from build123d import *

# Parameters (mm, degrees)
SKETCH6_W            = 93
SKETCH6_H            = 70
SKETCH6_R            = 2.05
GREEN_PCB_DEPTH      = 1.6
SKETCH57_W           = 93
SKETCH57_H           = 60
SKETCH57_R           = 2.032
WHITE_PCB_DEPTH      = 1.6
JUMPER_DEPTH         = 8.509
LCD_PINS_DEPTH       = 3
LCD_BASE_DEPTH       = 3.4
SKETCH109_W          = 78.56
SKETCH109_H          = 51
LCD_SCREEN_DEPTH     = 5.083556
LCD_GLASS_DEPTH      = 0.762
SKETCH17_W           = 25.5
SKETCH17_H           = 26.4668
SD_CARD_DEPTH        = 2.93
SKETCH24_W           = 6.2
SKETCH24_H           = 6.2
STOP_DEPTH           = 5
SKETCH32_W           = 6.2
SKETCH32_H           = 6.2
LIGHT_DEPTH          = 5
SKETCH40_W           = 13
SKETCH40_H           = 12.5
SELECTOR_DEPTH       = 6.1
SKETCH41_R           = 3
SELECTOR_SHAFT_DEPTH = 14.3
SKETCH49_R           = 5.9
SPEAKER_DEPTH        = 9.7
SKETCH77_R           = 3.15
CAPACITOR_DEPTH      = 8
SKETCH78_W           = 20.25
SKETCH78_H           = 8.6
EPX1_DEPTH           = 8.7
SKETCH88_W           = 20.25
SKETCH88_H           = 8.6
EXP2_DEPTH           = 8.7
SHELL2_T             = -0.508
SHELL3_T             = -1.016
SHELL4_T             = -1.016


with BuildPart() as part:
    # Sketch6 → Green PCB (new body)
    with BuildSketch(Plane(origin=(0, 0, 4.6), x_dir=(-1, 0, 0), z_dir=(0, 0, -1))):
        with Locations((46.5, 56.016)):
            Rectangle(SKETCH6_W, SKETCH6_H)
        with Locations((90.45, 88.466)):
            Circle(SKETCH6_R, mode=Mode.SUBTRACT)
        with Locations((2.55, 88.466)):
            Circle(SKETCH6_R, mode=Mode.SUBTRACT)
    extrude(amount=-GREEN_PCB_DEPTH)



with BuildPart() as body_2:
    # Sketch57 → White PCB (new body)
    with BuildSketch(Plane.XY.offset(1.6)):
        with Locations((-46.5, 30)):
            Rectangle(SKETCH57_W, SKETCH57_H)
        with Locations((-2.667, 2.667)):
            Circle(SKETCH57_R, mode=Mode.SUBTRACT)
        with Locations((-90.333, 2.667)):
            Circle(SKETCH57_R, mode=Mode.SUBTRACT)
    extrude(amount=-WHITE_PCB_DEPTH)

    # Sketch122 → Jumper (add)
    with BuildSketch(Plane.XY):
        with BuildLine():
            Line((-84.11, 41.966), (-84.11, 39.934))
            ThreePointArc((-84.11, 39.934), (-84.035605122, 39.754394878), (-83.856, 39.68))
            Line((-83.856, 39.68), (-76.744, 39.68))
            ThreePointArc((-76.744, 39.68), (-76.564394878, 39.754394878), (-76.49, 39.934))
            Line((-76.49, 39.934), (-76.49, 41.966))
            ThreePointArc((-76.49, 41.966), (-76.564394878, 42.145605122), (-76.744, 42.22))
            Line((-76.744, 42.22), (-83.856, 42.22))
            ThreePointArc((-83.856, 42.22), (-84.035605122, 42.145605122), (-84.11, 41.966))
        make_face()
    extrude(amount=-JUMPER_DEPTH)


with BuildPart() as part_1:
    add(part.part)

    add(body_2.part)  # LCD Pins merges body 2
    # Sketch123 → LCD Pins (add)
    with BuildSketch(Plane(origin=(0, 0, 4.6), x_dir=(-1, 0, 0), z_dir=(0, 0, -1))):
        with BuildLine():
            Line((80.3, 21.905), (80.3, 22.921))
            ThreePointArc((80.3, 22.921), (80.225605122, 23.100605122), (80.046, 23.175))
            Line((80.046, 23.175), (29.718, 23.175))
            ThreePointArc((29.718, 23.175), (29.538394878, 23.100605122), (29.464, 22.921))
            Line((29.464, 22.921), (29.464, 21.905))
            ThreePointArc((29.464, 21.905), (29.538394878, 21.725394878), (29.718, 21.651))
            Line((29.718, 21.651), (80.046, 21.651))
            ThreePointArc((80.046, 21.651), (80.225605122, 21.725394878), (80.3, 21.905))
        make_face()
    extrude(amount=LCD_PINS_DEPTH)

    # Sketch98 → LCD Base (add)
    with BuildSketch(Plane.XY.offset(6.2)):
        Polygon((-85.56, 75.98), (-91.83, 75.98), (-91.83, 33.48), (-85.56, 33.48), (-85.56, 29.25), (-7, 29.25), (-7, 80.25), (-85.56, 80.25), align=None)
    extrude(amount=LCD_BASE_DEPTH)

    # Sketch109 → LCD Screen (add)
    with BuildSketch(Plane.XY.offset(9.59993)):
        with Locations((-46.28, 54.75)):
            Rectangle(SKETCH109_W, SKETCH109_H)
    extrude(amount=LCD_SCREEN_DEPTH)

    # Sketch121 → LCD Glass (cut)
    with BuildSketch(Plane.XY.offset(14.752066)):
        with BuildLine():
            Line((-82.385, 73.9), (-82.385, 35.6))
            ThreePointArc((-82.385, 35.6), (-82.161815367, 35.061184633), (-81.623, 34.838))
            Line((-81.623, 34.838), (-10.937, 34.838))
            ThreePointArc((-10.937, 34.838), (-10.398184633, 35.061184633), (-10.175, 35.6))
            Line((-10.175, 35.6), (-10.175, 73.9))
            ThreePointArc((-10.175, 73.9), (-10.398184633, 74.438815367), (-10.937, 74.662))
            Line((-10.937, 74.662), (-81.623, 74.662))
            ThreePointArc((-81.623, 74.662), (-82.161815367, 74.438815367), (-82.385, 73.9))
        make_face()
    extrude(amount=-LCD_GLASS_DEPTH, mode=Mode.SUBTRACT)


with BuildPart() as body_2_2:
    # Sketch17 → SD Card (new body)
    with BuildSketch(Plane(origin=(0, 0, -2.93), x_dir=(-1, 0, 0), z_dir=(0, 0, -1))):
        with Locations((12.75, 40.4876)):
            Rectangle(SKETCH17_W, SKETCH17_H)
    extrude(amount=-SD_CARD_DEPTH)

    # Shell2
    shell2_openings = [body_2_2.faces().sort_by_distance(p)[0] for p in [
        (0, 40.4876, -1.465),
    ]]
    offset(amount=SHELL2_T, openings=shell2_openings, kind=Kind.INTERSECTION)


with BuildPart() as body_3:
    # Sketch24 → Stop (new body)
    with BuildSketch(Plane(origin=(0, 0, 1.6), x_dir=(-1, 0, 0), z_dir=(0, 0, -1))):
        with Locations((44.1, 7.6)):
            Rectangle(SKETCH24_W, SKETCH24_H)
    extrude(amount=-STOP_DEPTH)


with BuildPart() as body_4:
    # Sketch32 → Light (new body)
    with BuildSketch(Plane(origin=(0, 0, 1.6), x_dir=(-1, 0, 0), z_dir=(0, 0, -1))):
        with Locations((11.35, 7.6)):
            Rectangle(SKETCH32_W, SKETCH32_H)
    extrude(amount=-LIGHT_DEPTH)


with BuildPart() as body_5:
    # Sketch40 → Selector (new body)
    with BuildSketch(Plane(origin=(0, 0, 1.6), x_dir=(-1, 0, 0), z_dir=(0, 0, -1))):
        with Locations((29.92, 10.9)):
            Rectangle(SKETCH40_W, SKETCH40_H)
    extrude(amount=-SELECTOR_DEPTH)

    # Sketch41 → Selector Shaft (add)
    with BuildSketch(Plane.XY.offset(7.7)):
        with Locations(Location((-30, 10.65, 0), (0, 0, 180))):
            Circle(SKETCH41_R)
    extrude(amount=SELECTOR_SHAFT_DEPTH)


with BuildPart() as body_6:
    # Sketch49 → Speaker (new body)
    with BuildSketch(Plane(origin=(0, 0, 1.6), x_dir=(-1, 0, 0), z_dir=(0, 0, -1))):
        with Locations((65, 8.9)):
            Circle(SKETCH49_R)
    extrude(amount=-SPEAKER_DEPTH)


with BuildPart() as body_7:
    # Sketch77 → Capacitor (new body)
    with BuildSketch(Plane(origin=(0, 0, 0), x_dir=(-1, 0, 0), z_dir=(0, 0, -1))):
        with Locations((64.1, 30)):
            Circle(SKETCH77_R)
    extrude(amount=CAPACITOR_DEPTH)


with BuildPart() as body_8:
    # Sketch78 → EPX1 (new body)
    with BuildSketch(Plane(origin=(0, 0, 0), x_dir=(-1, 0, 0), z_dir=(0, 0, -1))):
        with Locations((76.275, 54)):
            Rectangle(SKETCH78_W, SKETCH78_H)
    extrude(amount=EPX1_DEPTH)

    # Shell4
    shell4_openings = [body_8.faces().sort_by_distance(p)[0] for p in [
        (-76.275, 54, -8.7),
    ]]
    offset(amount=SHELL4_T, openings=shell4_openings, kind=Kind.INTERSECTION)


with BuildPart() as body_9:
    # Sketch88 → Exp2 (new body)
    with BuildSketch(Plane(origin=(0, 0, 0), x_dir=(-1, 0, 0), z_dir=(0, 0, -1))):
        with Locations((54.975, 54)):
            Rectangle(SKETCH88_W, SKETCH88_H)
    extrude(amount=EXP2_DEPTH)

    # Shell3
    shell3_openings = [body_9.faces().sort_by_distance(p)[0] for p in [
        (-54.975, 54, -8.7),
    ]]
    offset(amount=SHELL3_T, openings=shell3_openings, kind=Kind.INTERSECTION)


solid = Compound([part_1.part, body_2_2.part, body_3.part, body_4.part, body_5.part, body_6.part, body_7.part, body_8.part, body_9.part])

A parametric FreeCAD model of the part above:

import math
import FreeCAD as App
import Part
import Sketcher
Q = App.Units.Quantity


def faces_at(feature, points):
    """Names of the faces that lie closest to the given points."""
    faces = feature.Shape.Faces
    near = lambda p: min(range(len(faces)), key=lambda i: faces[i].distToShape(Part.Vertex(*p))[0])
    return sorted({f"Face{near(p) + 1}" for p in points})


def add_polygon(sketch, points):
    """Adds a closed chain of lines whose ends are joined by coincident constraints."""
    first, n = sketch.GeometryCount, len(points)
    for a, b in zip(points, points[1:] + points[:1]):
        sketch.addGeometry(Part.LineSegment(App.Vector(*a, 0), App.Vector(*b, 0)), False)
    for i in range(n):
        sketch.addConstraint(Sketcher.Constraint("Coincident", first + i, 2, first + (i + 1) % n, 1))

doc = App.newDocument("Part")
params = doc.addObject("Spreadsheet::Sheet", "Params")
for row, (alias, value) in enumerate([
    ("sketch1_diameter", "4.1 mm"),
    ("sketch1_width", "93 mm"),
    ("sketch1_height", "70 mm"),
    ("pad1_length", "1.6 mm"),
    ("sketch2_width", "93 mm"),
    ("sketch2_height", "60 mm"),
    ("pad2_length", "1.6 mm"),
    ("pad3_length", "8.509 mm"),
    ("pad4_length", "3 mm"),
    ("sketch5_height", "51 mm"),
    ("sketch5_height2", "42.5 mm"),
    ("sketch5_width", "6.27 mm"),
    ("sketch5_width2", "78.56 mm"),
    ("sketch5_height3", "4.23 mm"),
    ("pad5_length", "3.4 mm"),
    ("sketch6_height", "51 mm"),
    ("sketch6_width", "78.56 mm"),
    ("pad6_length", "5.083556 mm"),
    ("sketch7_height", "38.3 mm"),
    ("pocket1_length", "0.762 mm"),
    ("sketch8_width", "25.5 mm"),
    ("pad7_length", "2.93 mm"),
    ("thickness_wall", "0.508 mm"),
    ("sketch9_width", "6.2 mm"),
    ("pad8_length", "5 mm"),
    ("sketch10_width", "6.2 mm"),
    ("pad9_length", "5 mm"),
    ("sketch11_width", "13 mm"),
    ("sketch11_height", "12.5 mm"),
    ("pad10_length", "6.1 mm"),
    ("sketch12_diameter", "6 mm"),
    ("pad11_length", "14.3 mm"),
    ("sketch13_diameter", "11.8 mm"),
    ("pad12_length", "9.7 mm"),
    ("sketch14_diameter", "6.3 mm"),
    ("pad13_length", "8 mm"),
    ("sketch15_height", "8.6 mm"),
    ("sketch15_width", "20.25 mm"),
    ("pad14_length", "8.7 mm"),
    ("thickness2_wall", "1.016 mm"),
    ("sketch16_height", "8.6 mm"),
    ("sketch16_width", "20.25 mm"),
    ("pad15_length", "8.7 mm"),
    ("thickness3_wall", "1.016 mm"),
], start=1):
    params.set(f"A{row}", alias)
    params.set(f"B{row}", "=" + value)
    params.setAlias(f"B{row}", alias)

body = doc.addObject("PartDesign::Body", "Body")

# Sketch on XY plane
sketch1 = doc.addObject("Sketcher::SketchObject", "Sketch")
body.addObject(sketch1)
sketch1.AttachmentSupport = (doc.XY_Plane, [""])
sketch1.MapMode = "FlatFace"
sketch1.AttachmentOffset = App.Placement(App.Vector(0, 0, 4.6), App.Rotation())
add_polygon(sketch1, [(0, 91), (0, 21), (-93, 21), (-93, 91)])  # lines 0-3
sketch1.addGeometry(Part.Circle(App.Vector(-2.5, 88.5, 0), App.Vector(0, 0, 1), 2), False)  # 4
sketch1.addGeometry(Part.Circle(App.Vector(-90.5, 88.5, 0), App.Vector(0, 0, 1), 2), False)  # 5
sketch1.addConstraint([
    Sketcher.Constraint("Vertical", 0),
    Sketcher.Constraint("Horizontal", 1),
    Sketcher.Constraint("Vertical", 2),
    Sketcher.Constraint("Horizontal", 3),
    Sketcher.Constraint("Equal", 4, 5),
    Sketcher.Constraint("PointOnObject", 0, 2, -2),
    Sketcher.Constraint("Horizontal", 4, 3, 5, 3),
    Sketcher.Constraint("Diameter", 4, Q("4.1 mm")),
    Sketcher.Constraint("DistanceX", 1, 2, 1, 1, Q("93 mm")),
    Sketcher.Constraint("DistanceY", 0, 2, 0, 1, Q("70 mm")),
    Sketcher.Constraint("DistanceX", 5, 3, 4, 3, Q("87.9 mm")),
    Sketcher.Constraint("DistanceX", 4, 3, -1, 1, Q("2.55 mm")),
    Sketcher.Constraint("DistanceY", 0, 2, 4, 3, Q("67.45 mm")),
    Sketcher.Constraint("DistanceY", -1, 1, 4, 3, Q("88.466 mm")),
])
sketch1.setExpression("Constraints[11]", "Params.sketch1_diameter")
sketch1.setExpression("Constraints[12]", "Params.sketch1_width")
sketch1.setExpression("Constraints[13]", "Params.sketch1_height")
pad1 = doc.addObject("PartDesign::Pad", "Pad")
body.addObject(pad1)
pad1.Profile = sketch1
pad1.setExpression("Length", "Params.pad1_length")
body2 = doc.addObject("PartDesign::Body", "Body001")

# Sketch on XY plane
sketch2 = doc.addObject("Sketcher::SketchObject", "Sketch001")
body2.addObject(sketch2)
sketch2.AttachmentSupport = (doc.getObject("XY_Plane001"), [""])
sketch2.MapMode = "FlatFace"
sketch2.AttachmentOffset = App.Placement(App.Vector(0, 0, 1.6), App.Rotation())
add_polygon(sketch2, [(-93, 60), (-93, 0), (0, 0), (0, 60)])  # lines 0-3
sketch2.addGeometry(Part.Circle(App.Vector(-90.3, 2.7, 0), App.Vector(0, 0, 1), 2), False)  # 4
sketch2.addGeometry(Part.Circle(App.Vector(-2.7, 2.7, 0), App.Vector(0, 0, 1), 2), False)  # 5
sketch2.addConstraint([
    Sketcher.Constraint("Vertical", 0),
    Sketcher.Constraint("Horizontal", 1),
    Sketcher.Constraint("Vertical", 2),
    Sketcher.Constraint("Horizontal", 3),
    Sketcher.Constraint("Coincident", 1, 2, -1, 1),
    Sketcher.Constraint("Equal", 4, 5),
    Sketcher.Constraint("Horizontal", 4, 3, 5, 3),
    Sketcher.Constraint("DistanceX", 1, 1, 1, 2, Q("93 mm")),
    Sketcher.Constraint("DistanceY", 0, 2, 0, 1, Q("60 mm")),
    Sketcher.Constraint("Diameter", 4, Q("4.064 mm")),
    Sketcher.Constraint("DistanceX", 4, 3, -1, 1, Q("90.333 mm")),
    Sketcher.Constraint("DistanceY", -1, 1, 4, 3, Q("2.667 mm")),
    Sketcher.Constraint("DistanceX", 5, 3, -1, 1, Q("2.667 mm")),
])
sketch2.setExpression("Constraints[11]", "Params.sketch2_width")
sketch2.setExpression("Constraints[12]", "Params.sketch2_height")
pad2 = doc.addObject("PartDesign::Pad", "Pad001")
body2.addObject(pad2)
pad2.Profile = sketch2
pad2.setExpression("Length", "Params.pad2_length")
pad2.Reversed = True

# Sketch on XY plane
sketch3 = doc.addObject("Sketcher::SketchObject", "Sketch002")
body2.addObject(sketch3)
sketch3.AttachmentSupport = (doc.getObject("XY_Plane001"), [""])
sketch3.MapMode = "FlatFace"
sketch3.addGeometry([
    Part.LineSegment(App.Vector(-84.11, 41.97, 0), App.Vector(-84.11, 39.93, 0)),  # 0
    Part.ArcOfCircle(Part.Circle(App.Vector(-83.86, 39.93, 0), App.Vector(0, 0, 1), 0.25), math.radians(-180), math.radians(-90)),  # 1
    Part.LineSegment(App.Vector(-83.86, 39.68, 0), App.Vector(-76.74, 39.68, 0)),  # 2
    Part.ArcOfCircle(Part.Circle(App.Vector(-76.74, 39.93, 0), App.Vector(0, 0, 1), 0.25), math.radians(-90), math.radians(0)),  # 3
    Part.LineSegment(App.Vector(-76.49, 39.93, 0), App.Vector(-76.49, 41.97, 0)),  # 4
    Part.ArcOfCircle(Part.Circle(App.Vector(-76.74, 41.97, 0), App.Vector(0, 0, 1), 0.25), math.radians(0), math.radians(90)),  # 5
    Part.LineSegment(App.Vector(-76.74, 42.22, 0), App.Vector(-83.86, 42.22, 0)),  # 6
    Part.ArcOfCircle(Part.Circle(App.Vector(-83.86, 41.97, 0), App.Vector(0, 0, 1), 0.25), math.radians(90), math.radians(180)),  # 7
], False)
sketch3.addConstraint([
    Sketcher.Constraint("Tangent", 0, 2, 1, 1),
    Sketcher.Constraint("Tangent", 1, 2, 2, 1),
    Sketcher.Constraint("Tangent", 2, 2, 3, 1),
    Sketcher.Constraint("Tangent", 3, 2, 4, 1),
    Sketcher.Constraint("Tangent", 4, 2, 5, 1),
    Sketcher.Constraint("Tangent", 5, 2, 6, 1),
    Sketcher.Constraint("Tangent", 6, 2, 7, 1),
    Sketcher.Constraint("Tangent", 7, 2, 0, 1),
    Sketcher.Constraint("Vertical", 0),
    Sketcher.Constraint("Horizontal", 2),
    Sketcher.Constraint("Vertical", 4),
    Sketcher.Constraint("Horizontal", 6),
    Sketcher.Constraint("Equal", 1, 3),
    Sketcher.Constraint("Equal", 3, 5),
    Sketcher.Constraint("Equal", 5, 7),
    Sketcher.Constraint("Radius", 1, Q("0.254 mm")),
    Sketcher.Constraint("DistanceX", 2, 1, 2, 2, Q("7.112 mm")),
    Sketcher.Constraint("DistanceY", 0, 2, 0, 1, Q("2.032 mm")),
    Sketcher.Constraint("DistanceX", 0, 2, -1, 1, Q("84.11 mm")),
    Sketcher.Constraint("DistanceY", -1, 1, 1, 2, Q("39.68 mm")),
])
pad3 = doc.addObject("PartDesign::Pad", "Pad002")
body2.addObject(pad3)
pad3.Profile = sketch3
pad3.setExpression("Length", "Params.pad3_length")
pad3.Reversed = True
body.AllowCompound = True
doc.recompute()

boolean = doc.addObject("PartDesign::Boolean", "Boolean")
body.addObject(boolean)
boolean.Type = "Fuse"
boolean.addObjects([body2])

# Sketch on XY plane
sketch4 = doc.addObject("Sketcher::SketchObject", "Sketch003")
body.addObject(sketch4)
sketch4.AttachmentSupport = (doc.XY_Plane, [""])
sketch4.MapMode = "FlatFace"
sketch4.AttachmentOffset = App.Placement(App.Vector(0, 0, 4.6), App.Rotation())
sketch4.addGeometry([
    Part.LineSegment(App.Vector(-80.3, 21.91, 0), App.Vector(-80.3, 22.92, 0)),  # 0
    Part.ArcOfCircle(Part.Circle(App.Vector(-80.05, 22.92, 0), App.Vector(0, 0, 1), 0.25), math.radians(90), math.radians(180)),  # 1
    Part.LineSegment(App.Vector(-80.05, 23.18, 0), App.Vector(-29.72, 23.18, 0)),  # 2
    Part.ArcOfCircle(Part.Circle(App.Vector(-29.72, 22.92, 0), App.Vector(0, 0, 1), 0.25), math.radians(0), math.radians(90)),  # 3
    Part.LineSegment(App.Vector(-29.46, 22.92, 0), App.Vector(-29.46, 21.91, 0)),  # 4
    Part.ArcOfCircle(Part.Circle(App.Vector(-29.72, 21.91, 0), App.Vector(0, 0, 1), 0.25), math.radians(-90), math.radians(0)),  # 5
    Part.LineSegment(App.Vector(-29.72, 21.65, 0), App.Vector(-80.05, 21.65, 0)),  # 6
    Part.ArcOfCircle(Part.Circle(App.Vector(-80.05, 21.91, 0), App.Vector(0, 0, 1), 0.25), math.radians(-180), math.radians(-90)),  # 7
], False)
sketch4.addConstraint([
    Sketcher.Constraint("Tangent", 0, 2, 1, 2),
    Sketcher.Constraint("Tangent", 1, 1, 2, 1),
    Sketcher.Constraint("Tangent", 2, 2, 3, 2),
    Sketcher.Constraint("Tangent", 3, 1, 4, 1),
    Sketcher.Constraint("Tangent", 4, 2, 5, 2),
    Sketcher.Constraint("Tangent", 5, 1, 6, 1),
    Sketcher.Constraint("Tangent", 6, 2, 7, 2),
    Sketcher.Constraint("Tangent", 7, 1, 0, 1),
    Sketcher.Constraint("Vertical", 0),
    Sketcher.Constraint("Horizontal", 2),
    Sketcher.Constraint("Vertical", 4),
    Sketcher.Constraint("Horizontal", 6),
    Sketcher.Constraint("Equal", 1, 3),
    Sketcher.Constraint("Equal", 3, 5),
    Sketcher.Constraint("Equal", 5, 7),
    Sketcher.Constraint("Radius", 1, Q("0.254 mm")),
    Sketcher.Constraint("DistanceX", 0, 2, -1, 1, Q("80.3 mm")),
    Sketcher.Constraint("DistanceX", 2, 1, 2, 2, Q("50.328 mm")),
    Sketcher.Constraint("DistanceY", 0, 1, 0, 2, Q("1.016 mm")),
    Sketcher.Constraint("DistanceY", -1, 1, 1, 3, Q("22.921 mm")),
])
pad4 = doc.addObject("PartDesign::Pad", "Pad003")
body.addObject(pad4)
pad4.Profile = sketch4
pad4.setExpression("Length", "Params.pad4_length")
pad4.Reversed = True

# Sketch on XY plane
sketch5 = doc.addObject("Sketcher::SketchObject", "Sketch004")
body.addObject(sketch5)
sketch5.AttachmentSupport = (doc.XY_Plane, [""])
sketch5.MapMode = "FlatFace"
sketch5.AttachmentOffset = App.Placement(App.Vector(0, 0, 6.2), App.Rotation())
add_polygon(sketch5, [(-85.6, 76), (-91.8, 76), (-91.8, 33.5), (-85.6, 33.5), (-85.6, 29.2), (-7, 29.2), (-7, 80.2), (-85.6, 80.2)])  # lines 0-7
sketch5.addConstraint([
    Sketcher.Constraint("Horizontal", 0),
    Sketcher.Constraint("Vertical", 1),
    Sketcher.Constraint("Horizontal", 2),
    Sketcher.Constraint("Vertical", 3),
    Sketcher.Constraint("Horizontal", 4),
    Sketcher.Constraint("Vertical", 5),
    Sketcher.Constraint("Horizontal", 6),
    Sketcher.Constraint("Vertical", 7),
    Sketcher.Constraint("Vertical", 3, 2, 6, 2),
    Sketcher.Constraint("DistanceY", 5, 1, 5, 2, Q("51 mm")),
    Sketcher.Constraint("DistanceY", 1, 2, 1, 1, Q("42.5 mm")),
    Sketcher.Constraint("DistanceX", 4, 2, -1, 1, Q("7 mm")),
    Sketcher.Constraint("DistanceX", 0, 2, 0, 1, Q("6.27 mm")),
    Sketcher.Constraint("DistanceX", 4, 1, 4, 2, Q("78.56 mm")),
    Sketcher.Constraint("DistanceY", 3, 2, 3, 1, Q("4.23 mm")),
    Sketcher.Constraint("DistanceY", -1, 1, 0, 2, Q("75.98 mm")),
])
sketch5.setExpression("Constraints[17]", "Params.sketch5_height")
sketch5.setExpression("Constraints[18]", "Params.sketch5_height2")
sketch5.setExpression("Constraints[20]", "Params.sketch5_width")
sketch5.setExpression("Constraints[21]", "Params.sketch5_width2")
sketch5.setExpression("Constraints[22]", "Params.sketch5_height3")
pad5 = doc.addObject("PartDesign::Pad", "Pad004")
body.addObject(pad5)
pad5.Profile = sketch5
pad5.setExpression("Length", "Params.pad5_length")

# Sketch on XY plane
sketch6 = doc.addObject("Sketcher::SketchObject", "Sketch005")
body.addObject(sketch6)
sketch6.AttachmentSupport = (doc.XY_Plane, [""])
sketch6.MapMode = "FlatFace"
sketch6.AttachmentOffset = App.Placement(App.Vector(0, 0, 9.59993), App.Rotation())
add_polygon(sketch6, [(-86, 80), (-86, 29), (-7, 29), (-7, 80)])  # lines 0-3
sketch6.addConstraint([
    Sketcher.Constraint("Vertical", 0),
    Sketcher.Constraint("Horizontal", 1),
    Sketcher.Constraint("Vertical", 2),
    Sketcher.Constraint("Horizontal", 3),
    Sketcher.Constraint("DistanceY", 0, 2, 0, 1, Q("51 mm")),
    Sketcher.Constraint("DistanceX", 1, 2, -1, 1, Q("7 mm")),
    Sketcher.Constraint("DistanceX", 1, 1, 1, 2, Q("78.56 mm")),
    Sketcher.Constraint("DistanceY", -1, 1, 0, 2, Q("29.25 mm")),
])
sketch6.setExpression("Constraints[8]", "Params.sketch6_height")
sketch6.setExpression("Constraints[10]", "Params.sketch6_width")
pad6 = doc.addObject("PartDesign::Pad", "Pad005")
body.addObject(pad6)
pad6.Profile = sketch6
pad6.setExpression("Length", "Params.pad6_length")

# Sketch on XY plane
sketch7 = doc.addObject("Sketcher::SketchObject", "Sketch006")
body.addObject(sketch7)
sketch7.AttachmentSupport = (doc.XY_Plane, [""])
sketch7.MapMode = "FlatFace"
sketch7.AttachmentOffset = App.Placement(App.Vector(0, 0, 14.752066), App.Rotation())
sketch7.addGeometry([
    Part.LineSegment(App.Vector(-82.4, 73.9, 0), App.Vector(-82.4, 35.6, 0)),  # 0
    Part.ArcOfCircle(Part.Circle(App.Vector(-81.6, 35.6, 0), App.Vector(0, 0, 1), 0.8), math.radians(-180), math.radians(-90)),  # 1
    Part.LineSegment(App.Vector(-81.6, 34.8, 0), App.Vector(-10.9, 34.8, 0)),  # 2
    Part.ArcOfCircle(Part.Circle(App.Vector(-10.9, 35.6, 0), App.Vector(0, 0, 1), 0.8), math.radians(-90), math.radians(0)),  # 3
    Part.LineSegment(App.Vector(-10.2, 35.6, 0), App.Vector(-10.2, 73.9, 0)),  # 4
    Part.ArcOfCircle(Part.Circle(App.Vector(-10.9, 73.9, 0), App.Vector(0, 0, 1), 0.8), math.radians(0), math.radians(90)),  # 5
    Part.LineSegment(App.Vector(-10.9, 74.7, 0), App.Vector(-81.6, 74.7, 0)),  # 6
    Part.ArcOfCircle(Part.Circle(App.Vector(-81.6, 73.9, 0), App.Vector(0, 0, 1), 0.8), math.radians(90), math.radians(180)),  # 7
], False)
sketch7.addConstraint([
    Sketcher.Constraint("Tangent", 0, 2, 1, 1),
    Sketcher.Constraint("Tangent", 1, 2, 2, 1),
    Sketcher.Constraint("Tangent", 2, 2, 3, 1),
    Sketcher.Constraint("Tangent", 3, 2, 4, 1),
    Sketcher.Constraint("Tangent", 4, 2, 5, 1),
    Sketcher.Constraint("Tangent", 5, 2, 6, 1),
    Sketcher.Constraint("Tangent", 6, 2, 7, 1),
    Sketcher.Constraint("Tangent", 7, 2, 0, 1),
    Sketcher.Constraint("Vertical", 0),
    Sketcher.Constraint("Horizontal", 2),
    Sketcher.Constraint("Vertical", 4),
    Sketcher.Constraint("Horizontal", 6),
    Sketcher.Constraint("Equal", 1, 3),
    Sketcher.Constraint("Equal", 3, 5),
    Sketcher.Constraint("Equal", 5, 7),
    Sketcher.Constraint("DistanceY", 0, 2, 0, 1, Q("38.3 mm")),
    Sketcher.Constraint("Radius", 1, Q("0.762 mm")),
    Sketcher.Constraint("DistanceY", -1, 1, 1, 3, Q("35.6 mm")),
    Sketcher.Constraint("DistanceX", 2, 1, 2, 2, Q("70.686 mm")),
    Sketcher.Constraint("DistanceX", 1, 3, -1, 1, Q("81.623 mm")),
])
sketch7.setExpression("Constraints[15]", "Params.sketch7_height")
pocket1 = doc.addObject("PartDesign::Pocket", "Pocket")
body.addObject(pocket1)
pocket1.Profile = sketch7
pocket1.setExpression("Length", "Params.pocket1_length")
body3 = doc.addObject("PartDesign::Body", "Body002")

# Sketch on XY plane
sketch8 = doc.addObject("Sketcher::SketchObject", "Sketch007")
body3.addObject(sketch8)
sketch8.AttachmentSupport = (doc.getObject("XY_Plane002"), [""])
sketch8.MapMode = "FlatFace"
sketch8.AttachmentOffset = App.Placement(App.Vector(0, 0, -2.93), App.Rotation())
add_polygon(sketch8, [(0, 54), (0, 27), (-26, 27), (-26, 54)])  # lines 0-3
sketch8.addConstraint([
    Sketcher.Constraint("Vertical", 0),
    Sketcher.Constraint("Horizontal", 1),
    Sketcher.Constraint("Vertical", 2),
    Sketcher.Constraint("Horizontal", 3),
    Sketcher.Constraint("PointOnObject", 0, 2, -2),
    Sketcher.Constraint("DistanceX", 1, 2, 1, 1, Q("25.5 mm")),
    Sketcher.Constraint("DistanceY", 0, 2, 0, 1, Q("26.4668 mm")),
    Sketcher.Constraint("DistanceY", -1, 1, 2, 2, Q("53.721 mm")),
])
sketch8.setExpression("Constraints[9]", "Params.sketch8_width")
pad7 = doc.addObject("PartDesign::Pad", "Pad006")
body3.addObject(pad7)
pad7.Profile = sketch8
pad7.setExpression("Length", "Params.pad7_length")
doc.recompute()

thickness = doc.addObject("PartDesign::Thickness", "Thickness")
body3.addObject(thickness)
thickness.Base = (pad7, faces_at(pad7, [(0, 40.488, -1.465)]))
thickness.setExpression("Value", "Params.thickness_wall")
thickness.Reversed = True
thickness.Join = "Intersection"
body4 = doc.addObject("PartDesign::Body", "Body003")

# Sketch on XY plane
sketch9 = doc.addObject("Sketcher::SketchObject", "Sketch008")
body4.addObject(sketch9)
sketch9.AttachmentSupport = (doc.getObject("XY_Plane003"), [""])
sketch9.MapMode = "FlatFace"
sketch9.AttachmentOffset = App.Placement(App.Vector(0, 0, 1.6), App.Rotation())
add_polygon(sketch9, [(-41, 11), (-41, 4), (-47, 4), (-47, 11)])  # lines 0-3
sketch9.addConstraint([
    Sketcher.Constraint("Vertical", 0),
    Sketcher.Constraint("Horizontal", 1),
    Sketcher.Constraint("Vertical", 2),
    Sketcher.Constraint("Horizontal", 3),
    Sketcher.Constraint("Equal", 3, 0),
    Sketcher.Constraint("DistanceX", 1, 2, 1, 1, Q("6.2 mm")),
    Sketcher.Constraint("DistanceX", 0, 2, -1, 1, Q("41 mm")),
    Sketcher.Constraint("DistanceY", -1, 1, 0, 2, Q("4.5 mm")),
])
sketch9.setExpression("Constraints[9]", "Params.sketch9_width")
pad8 = doc.addObject("PartDesign::Pad", "Pad007")
body4.addObject(pad8)
pad8.Profile = sketch9
pad8.setExpression("Length", "Params.pad8_length")
body5 = doc.addObject("PartDesign::Body", "Body004")

# Sketch on XY plane
sketch10 = doc.addObject("Sketcher::SketchObject", "Sketch009")
body5.addObject(sketch10)
sketch10.AttachmentSupport = (doc.getObject("XY_Plane004"), [""])
sketch10.MapMode = "FlatFace"
sketch10.AttachmentOffset = App.Placement(App.Vector(0, 0, 1.6), App.Rotation())
add_polygon(sketch10, [(-8, 11), (-8, 4), (-14, 4), (-14, 11)])  # lines 0-3
sketch10.addConstraint([
    Sketcher.Constraint("Vertical", 0),
    Sketcher.Constraint("Horizontal", 1),
    Sketcher.Constraint("Vertical", 2),
    Sketcher.Constraint("Horizontal", 3),
    Sketcher.Constraint("Equal", 3, 0),
    Sketcher.Constraint("DistanceX", 1, 2, 1, 1, Q("6.2 mm")),
    Sketcher.Constraint("DistanceY", -1, 1, 0, 2, Q("4.5 mm")),
    Sketcher.Constraint("DistanceX", 0, 2, -1, 1, Q("8.25 mm")),
])
sketch10.setExpression("Constraints[9]", "Params.sketch10_width")
pad9 = doc.addObject("PartDesign::Pad", "Pad008")
body5.addObject(pad9)
pad9.Profile = sketch10
pad9.setExpression("Length", "Params.pad9_length")
body6 = doc.addObject("PartDesign::Body", "Body005")

# Sketch on XY plane
sketch11 = doc.addObject("Sketcher::SketchObject", "Sketch010")
body6.addObject(sketch11)
sketch11.AttachmentSupport = (doc.getObject("XY_Plane005"), [""])
sketch11.MapMode = "FlatFace"
sketch11.AttachmentOffset = App.Placement(App.Vector(0, 0, 1.6), App.Rotation())
add_polygon(sketch11, [(-23, 17), (-23, 5), (-36, 5), (-36, 17)])  # lines 0-3
sketch11.addConstraint([
    Sketcher.Constraint("Vertical", 0),
    Sketcher.Constraint("Horizontal", 1),
    Sketcher.Constraint("Vertical", 2),
    Sketcher.Constraint("Horizontal", 3),
    Sketcher.Constraint("DistanceX", 1, 2, 1, 1, Q("13 mm")),
    Sketcher.Constraint("DistanceY", 0, 2, 0, 1, Q("12.5 mm")),
    Sketcher.Constraint("DistanceX", 0, 2, -1, 1, Q("23.42 mm")),
    Sketcher.Constraint("DistanceY", -1, 1, 0, 2, Q("4.65 mm")),
])
sketch11.setExpression("Constraints[8]", "Params.sketch11_width")
sketch11.setExpression("Constraints[9]", "Params.sketch11_height")
pad10 = doc.addObject("PartDesign::Pad", "Pad009")
body6.addObject(pad10)
pad10.Profile = sketch11
pad10.setExpression("Length", "Params.pad10_length")

# Sketch on XY plane
sketch12 = doc.addObject("Sketcher::SketchObject", "Sketch011")
body6.addObject(sketch12)
sketch12.AttachmentSupport = (doc.getObject("XY_Plane005"), [""])
sketch12.MapMode = "FlatFace"
sketch12.AttachmentOffset = App.Placement(App.Vector(0, 0, 7.7), App.Rotation())
sketch12.addGeometry(Part.Circle(App.Vector(-30, 10.7, 0), App.Vector(0, 0, 1), 3), False)
sketch12.addConstraint([
    Sketcher.Constraint("Diameter", 0, Q("6 mm")),
    Sketcher.Constraint("DistanceX", 0, 3, -1, 1, Q("30 mm")),
    Sketcher.Constraint("DistanceY", -1, 1, 0, 3, Q("10.65 mm")),
])
sketch12.setExpression("Constraints[0]", "Params.sketch12_diameter")
pad11 = doc.addObject("PartDesign::Pad", "Pad010")
body6.addObject(pad11)
pad11.Profile = sketch12
pad11.setExpression("Length", "Params.pad11_length")
body7 = doc.addObject("PartDesign::Body", "Body006")

# Sketch on XY plane
sketch13 = doc.addObject("Sketcher::SketchObject", "Sketch012")
body7.addObject(sketch13)
sketch13.AttachmentSupport = (doc.getObject("XY_Plane006"), [""])
sketch13.MapMode = "FlatFace"
sketch13.AttachmentOffset = App.Placement(App.Vector(0, 0, 1.6), App.Rotation())
sketch13.addGeometry(Part.Circle(App.Vector(-65, 9, 0), App.Vector(0, 0, 1), 6), False)
sketch13.addConstraint([
    Sketcher.Constraint("Diameter", 0, Q("11.8 mm")),
    Sketcher.Constraint("DistanceX", 0, 3, -1, 1, Q("65 mm")),
    Sketcher.Constraint("DistanceY", -1, 1, 0, 3, Q("8.9 mm")),
])
sketch13.setExpression("Constraints[0]", "Params.sketch13_diameter")
pad12 = doc.addObject("PartDesign::Pad", "Pad011")
body7.addObject(pad12)
pad12.Profile = sketch13
pad12.setExpression("Length", "Params.pad12_length")
body8 = doc.addObject("PartDesign::Body", "Body007")

# Sketch on XY plane
sketch14 = doc.addObject("Sketcher::SketchObject", "Sketch013")
body8.addObject(sketch14)
sketch14.AttachmentSupport = (doc.getObject("XY_Plane007"), [""])
sketch14.MapMode = "FlatFace"
sketch14.addGeometry(Part.Circle(App.Vector(-64.1, 30, 0), App.Vector(0, 0, 1), 3.1), False)
sketch14.addConstraint([
    Sketcher.Constraint("Diameter", 0, Q("6.3 mm")),
    Sketcher.Constraint("DistanceY", -1, 1, 0, 3, Q("30 mm")),
    Sketcher.Constraint("DistanceX", 0, 3, -1, 1, Q("64.1 mm")),
])
sketch14.setExpression("Constraints[0]", "Params.sketch14_diameter")
pad13 = doc.addObject("PartDesign::Pad", "Pad012")
body8.addObject(pad13)
pad13.Profile = sketch14
pad13.setExpression("Length", "Params.pad13_length")
pad13.Reversed = True
body9 = doc.addObject("PartDesign::Body", "Body008")

# Sketch on XY plane
sketch15 = doc.addObject("Sketcher::SketchObject", "Sketch014")
body9.addObject(sketch15)
sketch15.AttachmentSupport = (doc.getObject("XY_Plane008"), [""])
sketch15.MapMode = "FlatFace"
add_polygon(sketch15, [(-66, 58), (-66, 50), (-86, 50), (-86, 58)])  # lines 0-3
sketch15.addConstraint([
    Sketcher.Constraint("Vertical", 0),
    Sketcher.Constraint("Horizontal", 1),
    Sketcher.Constraint("Vertical", 2),
    Sketcher.Constraint("Horizontal", 3),
    Sketcher.Constraint("DistanceY", 0, 2, 0, 1, Q("8.6 mm")),
    Sketcher.Constraint("DistanceX", 1, 2, 1, 1, Q("20.25 mm")),
    Sketcher.Constraint("DistanceY", -1, 1, 0, 2, Q("49.7 mm")),
    Sketcher.Constraint("DistanceX", 1, 2, -1, 1, Q("86.4 mm")),
])
sketch15.setExpression("Constraints[8]", "Params.sketch15_height")
sketch15.setExpression("Constraints[9]", "Params.sketch15_width")
pad14 = doc.addObject("PartDesign::Pad", "Pad013")
body9.addObject(pad14)
pad14.Profile = sketch15
pad14.setExpression("Length", "Params.pad14_length")
pad14.Reversed = True
doc.recompute()

thickness2 = doc.addObject("PartDesign::Thickness", "Thickness001")
body9.addObject(thickness2)
thickness2.Base = (pad14, faces_at(pad14, [(-76.275, 54, -8.7)]))
thickness2.setExpression("Value", "Params.thickness2_wall")
thickness2.Reversed = True
thickness2.Join = "Intersection"
body10 = doc.addObject("PartDesign::Body", "Body009")

# Sketch on XY plane
sketch16 = doc.addObject("Sketcher::SketchObject", "Sketch015")
body10.addObject(sketch16)
sketch16.AttachmentSupport = (doc.getObject("XY_Plane009"), [""])
sketch16.MapMode = "FlatFace"
add_polygon(sketch16, [(-45, 58), (-45, 50), (-65, 50), (-65, 58)])  # lines 0-3
sketch16.addConstraint([
    Sketcher.Constraint("Vertical", 0),
    Sketcher.Constraint("Horizontal", 1),
    Sketcher.Constraint("Vertical", 2),
    Sketcher.Constraint("Horizontal", 3),
    Sketcher.Constraint("DistanceY", 0, 2, 0, 1, Q("8.6 mm")),
    Sketcher.Constraint("DistanceX", 1, 2, 1, 1, Q("20.25 mm")),
    Sketcher.Constraint("DistanceY", -1, 1, 0, 2, Q("49.7 mm")),
    Sketcher.Constraint("DistanceX", 1, 2, -1, 1, Q("65.1 mm")),
])
sketch16.setExpression("Constraints[8]", "Params.sketch16_height")
sketch16.setExpression("Constraints[9]", "Params.sketch16_width")
pad15 = doc.addObject("PartDesign::Pad", "Pad014")
body10.addObject(pad15)
pad15.Profile = sketch16
pad15.setExpression("Length", "Params.pad15_length")
pad15.Reversed = True
doc.recompute()

thickness3 = doc.addObject("PartDesign::Thickness", "Thickness002")
body10.addObject(thickness3)
thickness3.Base = (pad15, faces_at(pad15, [(-54.975, 54, -8.7)]))
thickness3.setExpression("Value", "Params.thickness3_wall")
thickness3.Reversed = True
thickness3.Join = "Intersection"

doc.recompute()
